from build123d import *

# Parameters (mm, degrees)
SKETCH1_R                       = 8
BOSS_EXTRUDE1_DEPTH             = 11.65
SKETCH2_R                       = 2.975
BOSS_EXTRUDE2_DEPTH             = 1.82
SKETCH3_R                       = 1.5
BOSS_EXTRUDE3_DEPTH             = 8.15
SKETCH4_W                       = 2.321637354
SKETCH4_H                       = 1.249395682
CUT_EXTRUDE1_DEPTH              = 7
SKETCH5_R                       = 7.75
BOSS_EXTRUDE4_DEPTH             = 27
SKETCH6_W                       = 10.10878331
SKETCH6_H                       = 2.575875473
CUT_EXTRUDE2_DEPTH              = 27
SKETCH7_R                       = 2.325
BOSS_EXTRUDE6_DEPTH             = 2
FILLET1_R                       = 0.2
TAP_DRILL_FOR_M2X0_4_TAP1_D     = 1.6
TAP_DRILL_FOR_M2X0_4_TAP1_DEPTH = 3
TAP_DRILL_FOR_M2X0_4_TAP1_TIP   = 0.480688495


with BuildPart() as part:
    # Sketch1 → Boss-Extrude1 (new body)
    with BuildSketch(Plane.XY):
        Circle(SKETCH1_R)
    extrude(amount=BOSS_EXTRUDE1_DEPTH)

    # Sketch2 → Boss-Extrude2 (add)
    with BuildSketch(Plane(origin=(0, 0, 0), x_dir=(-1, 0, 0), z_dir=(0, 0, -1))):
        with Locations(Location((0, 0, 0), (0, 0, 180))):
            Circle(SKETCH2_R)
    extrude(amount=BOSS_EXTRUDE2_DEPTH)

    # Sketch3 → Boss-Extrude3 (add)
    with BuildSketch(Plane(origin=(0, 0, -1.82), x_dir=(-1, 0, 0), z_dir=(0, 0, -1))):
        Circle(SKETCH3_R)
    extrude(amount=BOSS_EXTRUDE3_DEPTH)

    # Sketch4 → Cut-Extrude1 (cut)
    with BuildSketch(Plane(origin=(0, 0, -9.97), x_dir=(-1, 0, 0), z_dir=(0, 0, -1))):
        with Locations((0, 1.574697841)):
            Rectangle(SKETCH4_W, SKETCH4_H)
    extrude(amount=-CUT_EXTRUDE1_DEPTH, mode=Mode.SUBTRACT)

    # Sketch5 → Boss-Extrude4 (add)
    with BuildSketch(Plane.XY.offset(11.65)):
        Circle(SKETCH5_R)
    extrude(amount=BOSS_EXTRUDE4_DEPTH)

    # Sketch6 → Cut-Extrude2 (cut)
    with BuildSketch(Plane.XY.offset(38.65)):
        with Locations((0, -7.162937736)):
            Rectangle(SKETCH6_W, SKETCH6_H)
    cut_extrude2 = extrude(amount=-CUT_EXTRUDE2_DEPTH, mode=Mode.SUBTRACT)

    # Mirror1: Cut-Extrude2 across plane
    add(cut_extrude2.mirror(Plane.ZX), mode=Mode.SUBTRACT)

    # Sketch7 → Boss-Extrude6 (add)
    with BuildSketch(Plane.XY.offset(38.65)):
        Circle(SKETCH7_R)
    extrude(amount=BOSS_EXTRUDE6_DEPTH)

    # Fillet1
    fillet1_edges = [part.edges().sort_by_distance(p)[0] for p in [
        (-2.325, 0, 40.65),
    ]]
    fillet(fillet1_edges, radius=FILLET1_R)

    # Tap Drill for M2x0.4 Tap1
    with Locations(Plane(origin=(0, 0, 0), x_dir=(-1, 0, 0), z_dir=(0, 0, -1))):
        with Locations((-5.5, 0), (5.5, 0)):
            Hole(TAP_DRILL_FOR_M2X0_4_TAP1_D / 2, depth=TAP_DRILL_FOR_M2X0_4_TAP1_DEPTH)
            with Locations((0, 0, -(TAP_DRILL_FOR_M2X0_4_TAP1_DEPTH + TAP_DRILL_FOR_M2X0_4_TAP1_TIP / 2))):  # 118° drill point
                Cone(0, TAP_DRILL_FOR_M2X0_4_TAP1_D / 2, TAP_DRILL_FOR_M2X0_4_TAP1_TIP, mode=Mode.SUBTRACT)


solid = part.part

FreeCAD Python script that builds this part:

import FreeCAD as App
import Part
import Sketcher
from FreeCAD import Vector


def edges_at(feature, points):
    """Names of the edges that pass closest to the given points."""
    edges = feature.Shape.Edges
    near = lambda p: min(range(len(edges)), key=lambda i: edges[i].distToShape(Part.Vertex(*p))[0])
    return sorted({f"Edge{near(p) + 1}" for p in points})

doc = App.newDocument("Part")
body = doc.addObject("PartDesign::Body", "Body")

# Sketch on XY plane
sketch1 = body.newObject("Sketcher::SketchObject", "Sketch")
sketch1.AttachmentSupport = (doc.getObject("XY_Plane"), [""])
sketch1.MapMode = "FlatFace"
sketch1.addGeometry(Part.Circle(Vector(0, 0, 0), Vector(0, 0, 1), 8), False)
sketch1.addConstraint([
    Sketcher.Constraint("Coincident", 0, 3, -1, 1),
    Sketcher.Constraint("Diameter", 0, 16.0),
])
pad1 = body.newObject("PartDesign::Pad", "Pad")
pad1.Profile = sketch1
pad1.Length = 11.65

# Sketch on XY plane
sketch2 = body.newObject("Sketcher::SketchObject", "Sketch001")
sketch2.AttachmentSupport = (doc.getObject("XY_Plane"), [""])
sketch2.MapMode = "FlatFace"
sketch2.addGeometry(Part.Circle(Vector(0, 0, 0), Vector(0, 0, 1), 3), False)
sketch2.addConstraint([
    Sketcher.Constraint("Coincident", 0, 3, -1, 1),
    Sketcher.Constraint("Diameter", 0, 5.95),
])
pad2 = body.newObject("PartDesign::Pad", "Pad001")
pad2.Profile = sketch2
pad2.Length = 1.82
pad2.Reversed = True

# Sketch on XY plane
sketch3 = body.newObject("Sketcher::SketchObject", "Sketch002")
sketch3.AttachmentSupport = (doc.getObject("XY_Plane"), [""])
sketch3.MapMode = "FlatFace"
sketch3.AttachmentOffset = App.Placement(Vector(0, 0, -1.82), App.Rotation())
sketch3.addGeometry(Part.Circle(Vector(0, 0, 0), Vector(0, 0, 1), 1.5), False)
sketch3.addConstraint([
    Sketcher.Constraint("Coincident", 0, 3, -1, 1),
    Sketcher.Constraint("Diameter", 0, 3.0),
])
pad3 = body.newObject("PartDesign::Pad", "Pad002")
pad3.Profile = sketch3
pad3.Length = 8.15
pad3.Reversed = True

# Sketch on XY plane
sketch4 = body.newObject("Sketcher::SketchObject", "Sketch003")
sketch4.AttachmentSupport = (doc.getObject("XY_Plane"), [""])
sketch4.MapMode = "FlatFace"
sketch4.AttachmentOffset = App.Placement(Vector(0, 0, -9.97), App.Rotation())
sketch4.addGeometry([
    Part.LineSegment(Vector(1.2, 2.2, 0), Vector(1.2, 0.9, 0)),
    Part.LineSegment(Vector(1.2, 0.9, 0), Vector(-1.2, 0.9, 0)),
    Part.LineSegment(Vector(-1.2, 0.9, 0), Vector(-1.2, 2.2, 0)),
    Part.LineSegment(Vector(-1.2, 2.2, 0), Vector(1.2, 2.2, 0)),
], False)
sketch4.addConstraint([
    Sketcher.Constraint("Coincident", 0, 2, 1, 1),
    Sketcher.Constraint("Coincident", 1, 2, 2, 1),
    Sketcher.Constraint("Coincident", 2, 2, 3, 1),
    Sketcher.Constraint("Coincident", 3, 2, 0, 1),
    Sketcher.Constraint("Vertical", 0),
    Sketcher.Constraint("Horizontal", 1),
    Sketcher.Constraint("Vertical", 2),
    Sketcher.Constraint("Horizontal", 3),
    Sketcher.Constraint("DistanceY", -1, 1, 0, 2, 0.95),
    Sketcher.Constraint("DistanceX", 1, 2, 1, 1, 2.321637),
    Sketcher.Constraint("DistanceY", 0, 2, 0, 1, 1.249396),
    Sketcher.Constraint("DistanceX", -1, 1, 0, 2, 1.160819),
])
pocket1 = body.newObject("PartDesign::Pocket", "Pocket")
pocket1.Profile = sketch4
pocket1.Length = 7
pocket1.Reversed = True

# Sketch on XY plane
sketch5 = body.newObject("Sketcher::SketchObject", "Sketch004")
sketch5.AttachmentSupport = (doc.getObject("XY_Plane"), [""])
sketch5.MapMode = "FlatFace"
sketch5.AttachmentOffset = App.Placement(Vector(0, 0, 11.65), App.Rotation())
sketch5.addGeometry(Part.Circle(Vector(0, 0, 0), Vector(0, 0, 1), 8), False)
sketch5.addConstraint([
    Sketcher.Constraint("Coincident", 0, 3, -1, 1),
    Sketcher.Constraint("Diameter", 0, 15.5),
])
pad4 = body.newObject("PartDesign::Pad", "Pad003")
pad4.Profile = sketch5
pad4.Length = 27

# Sketch on XY plane
sketch6 = body.newObject("Sketcher::SketchObject", "Sketch005")
sketch6.AttachmentSupport = (doc.getObject("XY_Plane"), [""])
sketch6.MapMode = "FlatFace"
sketch6.AttachmentOffset = App.Placement(Vector(0, 0, 38.65), App.Rotation())
sketch6.addGeometry([
    Part.LineSegment(Vector(-5.1, -5.9, 0), Vector(-5.1, -8.5, 0)),
    Part.LineSegment(Vector(-5.1, -8.5, 0), Vector(5.1, -8.5, 0)),
    Part.LineSegment(Vector(5.1, -8.5, 0), Vector(5.1, -5.9, 0)),
    Part.LineSegment(Vector(5.1, -5.9, 0), Vector(-5.1, -5.9, 0)),
], False)
sketch6.addConstraint([
    Sketcher.Constraint("Coincident", 0, 2, 1, 1),
    Sketcher.Constraint("Coincident", 1, 2, 2, 1),
    Sketcher.Constraint("Coincident", 2, 2, 3, 1),
    Sketcher.Constraint("Coincident", 3, 2, 0, 1),
    Sketcher.Constraint("Vertical", 0),
    Sketcher.Constraint("Horizontal", 1),
    Sketcher.Constraint("Vertical", 2),
    Sketcher.Constraint("Horizontal", 3),
    Sketcher.Constraint("DistanceY", 2, 2, -1, 1, 5.875),
    Sketcher.Constraint("DistanceX", 1, 1, 1, 2, 10.108783),
    Sketcher.Constraint("DistanceY", 0, 2, 0, 1, 2.575875),
    Sketcher.Constraint("DistanceX", 0, 2, -1, 1, 5.054392),
])
pocket2 = body.newObject("PartDesign::Pocket", "Pocket001")
pocket2.Profile = sketch6
pocket2.Length = 27
doc.recompute()

mirrored = body.newObject("PartDesign::Mirrored", "Mirrored")
mirrored.Originals = [pocket2]
mirrored.MirrorPlane = (doc.getObject("XZ_Plane"), [""])
body.Tip = mirrored

# Sketch on XY plane
sketch7 = body.newObject("Sketcher::SketchObject", "Sketch006")
sketch7.AttachmentSupport = (doc.getObject("XY_Plane"), [""])
sketch7.MapMode = "FlatFace"
sketch7.AttachmentOffset = App.Placement(Vector(0, 0, 38.65), App.Rotation())
sketch7.addGeometry(Part.Circle(Vector(0, 0, 0), Vector(0, 0, 1), 2.3), False)
sketch7.addConstraint([
    Sketcher.Constraint("Coincident", 0, 3, -1, 1),
    Sketcher.Constraint("Diameter", 0, 4.65),
])
pad5 = body.newObject("PartDesign::Pad", "Pad004")
pad5.Profile = sketch7
pad5.Length = 2
doc.recompute()

fillet = body.newObject("PartDesign::Fillet", "Fillet")
fillet.Base = (pad5, edges_at(pad5, [(-2.325, 0, 40.65)]))
fillet.Radius = 0.2

# Sketch on XY plane
sketch8 = body.newObject("Sketcher::SketchObject", "Sketch007")
sketch8.AttachmentSupport = (doc.getObject("XY_Plane"), [""])
sketch8.MapMode = "FlatFace"
sketch8.addGeometry([
    Part.Circle(Vector(5.5, 0, 0), Vector(0, 0, 1), 0.8),
    Part.Circle(Vector(-5.5, 0, 0), Vector(0, 0, 1), 0.8),
], False)
sketch8.addConstraint([
    Sketcher.Constraint("Equal", 0, 1),
    Sketcher.Constraint("Symmetric", 0, 3, 1, 3, -1, 1),
    Sketcher.Constraint("PointOnObject", 0, 3, -1),
    Sketcher.Constraint("Diameter", 0, 1.6),
    Sketcher.Constraint("DistanceX", 1, 3, 0, 3, 11.0),
])
doc.recompute()
hole = body.newObject("PartDesign::Hole", "Hole")
hole.Profile = sketch8
hole.ThreadType = "None"
hole.Diameter = 1.6
hole.DepthType = "Dimension"
hole.Depth = 3
hole.DrillPoint = "Angled"
hole.DrillPointAngle = 118
hole.Reversed = True

doc.recompute()
